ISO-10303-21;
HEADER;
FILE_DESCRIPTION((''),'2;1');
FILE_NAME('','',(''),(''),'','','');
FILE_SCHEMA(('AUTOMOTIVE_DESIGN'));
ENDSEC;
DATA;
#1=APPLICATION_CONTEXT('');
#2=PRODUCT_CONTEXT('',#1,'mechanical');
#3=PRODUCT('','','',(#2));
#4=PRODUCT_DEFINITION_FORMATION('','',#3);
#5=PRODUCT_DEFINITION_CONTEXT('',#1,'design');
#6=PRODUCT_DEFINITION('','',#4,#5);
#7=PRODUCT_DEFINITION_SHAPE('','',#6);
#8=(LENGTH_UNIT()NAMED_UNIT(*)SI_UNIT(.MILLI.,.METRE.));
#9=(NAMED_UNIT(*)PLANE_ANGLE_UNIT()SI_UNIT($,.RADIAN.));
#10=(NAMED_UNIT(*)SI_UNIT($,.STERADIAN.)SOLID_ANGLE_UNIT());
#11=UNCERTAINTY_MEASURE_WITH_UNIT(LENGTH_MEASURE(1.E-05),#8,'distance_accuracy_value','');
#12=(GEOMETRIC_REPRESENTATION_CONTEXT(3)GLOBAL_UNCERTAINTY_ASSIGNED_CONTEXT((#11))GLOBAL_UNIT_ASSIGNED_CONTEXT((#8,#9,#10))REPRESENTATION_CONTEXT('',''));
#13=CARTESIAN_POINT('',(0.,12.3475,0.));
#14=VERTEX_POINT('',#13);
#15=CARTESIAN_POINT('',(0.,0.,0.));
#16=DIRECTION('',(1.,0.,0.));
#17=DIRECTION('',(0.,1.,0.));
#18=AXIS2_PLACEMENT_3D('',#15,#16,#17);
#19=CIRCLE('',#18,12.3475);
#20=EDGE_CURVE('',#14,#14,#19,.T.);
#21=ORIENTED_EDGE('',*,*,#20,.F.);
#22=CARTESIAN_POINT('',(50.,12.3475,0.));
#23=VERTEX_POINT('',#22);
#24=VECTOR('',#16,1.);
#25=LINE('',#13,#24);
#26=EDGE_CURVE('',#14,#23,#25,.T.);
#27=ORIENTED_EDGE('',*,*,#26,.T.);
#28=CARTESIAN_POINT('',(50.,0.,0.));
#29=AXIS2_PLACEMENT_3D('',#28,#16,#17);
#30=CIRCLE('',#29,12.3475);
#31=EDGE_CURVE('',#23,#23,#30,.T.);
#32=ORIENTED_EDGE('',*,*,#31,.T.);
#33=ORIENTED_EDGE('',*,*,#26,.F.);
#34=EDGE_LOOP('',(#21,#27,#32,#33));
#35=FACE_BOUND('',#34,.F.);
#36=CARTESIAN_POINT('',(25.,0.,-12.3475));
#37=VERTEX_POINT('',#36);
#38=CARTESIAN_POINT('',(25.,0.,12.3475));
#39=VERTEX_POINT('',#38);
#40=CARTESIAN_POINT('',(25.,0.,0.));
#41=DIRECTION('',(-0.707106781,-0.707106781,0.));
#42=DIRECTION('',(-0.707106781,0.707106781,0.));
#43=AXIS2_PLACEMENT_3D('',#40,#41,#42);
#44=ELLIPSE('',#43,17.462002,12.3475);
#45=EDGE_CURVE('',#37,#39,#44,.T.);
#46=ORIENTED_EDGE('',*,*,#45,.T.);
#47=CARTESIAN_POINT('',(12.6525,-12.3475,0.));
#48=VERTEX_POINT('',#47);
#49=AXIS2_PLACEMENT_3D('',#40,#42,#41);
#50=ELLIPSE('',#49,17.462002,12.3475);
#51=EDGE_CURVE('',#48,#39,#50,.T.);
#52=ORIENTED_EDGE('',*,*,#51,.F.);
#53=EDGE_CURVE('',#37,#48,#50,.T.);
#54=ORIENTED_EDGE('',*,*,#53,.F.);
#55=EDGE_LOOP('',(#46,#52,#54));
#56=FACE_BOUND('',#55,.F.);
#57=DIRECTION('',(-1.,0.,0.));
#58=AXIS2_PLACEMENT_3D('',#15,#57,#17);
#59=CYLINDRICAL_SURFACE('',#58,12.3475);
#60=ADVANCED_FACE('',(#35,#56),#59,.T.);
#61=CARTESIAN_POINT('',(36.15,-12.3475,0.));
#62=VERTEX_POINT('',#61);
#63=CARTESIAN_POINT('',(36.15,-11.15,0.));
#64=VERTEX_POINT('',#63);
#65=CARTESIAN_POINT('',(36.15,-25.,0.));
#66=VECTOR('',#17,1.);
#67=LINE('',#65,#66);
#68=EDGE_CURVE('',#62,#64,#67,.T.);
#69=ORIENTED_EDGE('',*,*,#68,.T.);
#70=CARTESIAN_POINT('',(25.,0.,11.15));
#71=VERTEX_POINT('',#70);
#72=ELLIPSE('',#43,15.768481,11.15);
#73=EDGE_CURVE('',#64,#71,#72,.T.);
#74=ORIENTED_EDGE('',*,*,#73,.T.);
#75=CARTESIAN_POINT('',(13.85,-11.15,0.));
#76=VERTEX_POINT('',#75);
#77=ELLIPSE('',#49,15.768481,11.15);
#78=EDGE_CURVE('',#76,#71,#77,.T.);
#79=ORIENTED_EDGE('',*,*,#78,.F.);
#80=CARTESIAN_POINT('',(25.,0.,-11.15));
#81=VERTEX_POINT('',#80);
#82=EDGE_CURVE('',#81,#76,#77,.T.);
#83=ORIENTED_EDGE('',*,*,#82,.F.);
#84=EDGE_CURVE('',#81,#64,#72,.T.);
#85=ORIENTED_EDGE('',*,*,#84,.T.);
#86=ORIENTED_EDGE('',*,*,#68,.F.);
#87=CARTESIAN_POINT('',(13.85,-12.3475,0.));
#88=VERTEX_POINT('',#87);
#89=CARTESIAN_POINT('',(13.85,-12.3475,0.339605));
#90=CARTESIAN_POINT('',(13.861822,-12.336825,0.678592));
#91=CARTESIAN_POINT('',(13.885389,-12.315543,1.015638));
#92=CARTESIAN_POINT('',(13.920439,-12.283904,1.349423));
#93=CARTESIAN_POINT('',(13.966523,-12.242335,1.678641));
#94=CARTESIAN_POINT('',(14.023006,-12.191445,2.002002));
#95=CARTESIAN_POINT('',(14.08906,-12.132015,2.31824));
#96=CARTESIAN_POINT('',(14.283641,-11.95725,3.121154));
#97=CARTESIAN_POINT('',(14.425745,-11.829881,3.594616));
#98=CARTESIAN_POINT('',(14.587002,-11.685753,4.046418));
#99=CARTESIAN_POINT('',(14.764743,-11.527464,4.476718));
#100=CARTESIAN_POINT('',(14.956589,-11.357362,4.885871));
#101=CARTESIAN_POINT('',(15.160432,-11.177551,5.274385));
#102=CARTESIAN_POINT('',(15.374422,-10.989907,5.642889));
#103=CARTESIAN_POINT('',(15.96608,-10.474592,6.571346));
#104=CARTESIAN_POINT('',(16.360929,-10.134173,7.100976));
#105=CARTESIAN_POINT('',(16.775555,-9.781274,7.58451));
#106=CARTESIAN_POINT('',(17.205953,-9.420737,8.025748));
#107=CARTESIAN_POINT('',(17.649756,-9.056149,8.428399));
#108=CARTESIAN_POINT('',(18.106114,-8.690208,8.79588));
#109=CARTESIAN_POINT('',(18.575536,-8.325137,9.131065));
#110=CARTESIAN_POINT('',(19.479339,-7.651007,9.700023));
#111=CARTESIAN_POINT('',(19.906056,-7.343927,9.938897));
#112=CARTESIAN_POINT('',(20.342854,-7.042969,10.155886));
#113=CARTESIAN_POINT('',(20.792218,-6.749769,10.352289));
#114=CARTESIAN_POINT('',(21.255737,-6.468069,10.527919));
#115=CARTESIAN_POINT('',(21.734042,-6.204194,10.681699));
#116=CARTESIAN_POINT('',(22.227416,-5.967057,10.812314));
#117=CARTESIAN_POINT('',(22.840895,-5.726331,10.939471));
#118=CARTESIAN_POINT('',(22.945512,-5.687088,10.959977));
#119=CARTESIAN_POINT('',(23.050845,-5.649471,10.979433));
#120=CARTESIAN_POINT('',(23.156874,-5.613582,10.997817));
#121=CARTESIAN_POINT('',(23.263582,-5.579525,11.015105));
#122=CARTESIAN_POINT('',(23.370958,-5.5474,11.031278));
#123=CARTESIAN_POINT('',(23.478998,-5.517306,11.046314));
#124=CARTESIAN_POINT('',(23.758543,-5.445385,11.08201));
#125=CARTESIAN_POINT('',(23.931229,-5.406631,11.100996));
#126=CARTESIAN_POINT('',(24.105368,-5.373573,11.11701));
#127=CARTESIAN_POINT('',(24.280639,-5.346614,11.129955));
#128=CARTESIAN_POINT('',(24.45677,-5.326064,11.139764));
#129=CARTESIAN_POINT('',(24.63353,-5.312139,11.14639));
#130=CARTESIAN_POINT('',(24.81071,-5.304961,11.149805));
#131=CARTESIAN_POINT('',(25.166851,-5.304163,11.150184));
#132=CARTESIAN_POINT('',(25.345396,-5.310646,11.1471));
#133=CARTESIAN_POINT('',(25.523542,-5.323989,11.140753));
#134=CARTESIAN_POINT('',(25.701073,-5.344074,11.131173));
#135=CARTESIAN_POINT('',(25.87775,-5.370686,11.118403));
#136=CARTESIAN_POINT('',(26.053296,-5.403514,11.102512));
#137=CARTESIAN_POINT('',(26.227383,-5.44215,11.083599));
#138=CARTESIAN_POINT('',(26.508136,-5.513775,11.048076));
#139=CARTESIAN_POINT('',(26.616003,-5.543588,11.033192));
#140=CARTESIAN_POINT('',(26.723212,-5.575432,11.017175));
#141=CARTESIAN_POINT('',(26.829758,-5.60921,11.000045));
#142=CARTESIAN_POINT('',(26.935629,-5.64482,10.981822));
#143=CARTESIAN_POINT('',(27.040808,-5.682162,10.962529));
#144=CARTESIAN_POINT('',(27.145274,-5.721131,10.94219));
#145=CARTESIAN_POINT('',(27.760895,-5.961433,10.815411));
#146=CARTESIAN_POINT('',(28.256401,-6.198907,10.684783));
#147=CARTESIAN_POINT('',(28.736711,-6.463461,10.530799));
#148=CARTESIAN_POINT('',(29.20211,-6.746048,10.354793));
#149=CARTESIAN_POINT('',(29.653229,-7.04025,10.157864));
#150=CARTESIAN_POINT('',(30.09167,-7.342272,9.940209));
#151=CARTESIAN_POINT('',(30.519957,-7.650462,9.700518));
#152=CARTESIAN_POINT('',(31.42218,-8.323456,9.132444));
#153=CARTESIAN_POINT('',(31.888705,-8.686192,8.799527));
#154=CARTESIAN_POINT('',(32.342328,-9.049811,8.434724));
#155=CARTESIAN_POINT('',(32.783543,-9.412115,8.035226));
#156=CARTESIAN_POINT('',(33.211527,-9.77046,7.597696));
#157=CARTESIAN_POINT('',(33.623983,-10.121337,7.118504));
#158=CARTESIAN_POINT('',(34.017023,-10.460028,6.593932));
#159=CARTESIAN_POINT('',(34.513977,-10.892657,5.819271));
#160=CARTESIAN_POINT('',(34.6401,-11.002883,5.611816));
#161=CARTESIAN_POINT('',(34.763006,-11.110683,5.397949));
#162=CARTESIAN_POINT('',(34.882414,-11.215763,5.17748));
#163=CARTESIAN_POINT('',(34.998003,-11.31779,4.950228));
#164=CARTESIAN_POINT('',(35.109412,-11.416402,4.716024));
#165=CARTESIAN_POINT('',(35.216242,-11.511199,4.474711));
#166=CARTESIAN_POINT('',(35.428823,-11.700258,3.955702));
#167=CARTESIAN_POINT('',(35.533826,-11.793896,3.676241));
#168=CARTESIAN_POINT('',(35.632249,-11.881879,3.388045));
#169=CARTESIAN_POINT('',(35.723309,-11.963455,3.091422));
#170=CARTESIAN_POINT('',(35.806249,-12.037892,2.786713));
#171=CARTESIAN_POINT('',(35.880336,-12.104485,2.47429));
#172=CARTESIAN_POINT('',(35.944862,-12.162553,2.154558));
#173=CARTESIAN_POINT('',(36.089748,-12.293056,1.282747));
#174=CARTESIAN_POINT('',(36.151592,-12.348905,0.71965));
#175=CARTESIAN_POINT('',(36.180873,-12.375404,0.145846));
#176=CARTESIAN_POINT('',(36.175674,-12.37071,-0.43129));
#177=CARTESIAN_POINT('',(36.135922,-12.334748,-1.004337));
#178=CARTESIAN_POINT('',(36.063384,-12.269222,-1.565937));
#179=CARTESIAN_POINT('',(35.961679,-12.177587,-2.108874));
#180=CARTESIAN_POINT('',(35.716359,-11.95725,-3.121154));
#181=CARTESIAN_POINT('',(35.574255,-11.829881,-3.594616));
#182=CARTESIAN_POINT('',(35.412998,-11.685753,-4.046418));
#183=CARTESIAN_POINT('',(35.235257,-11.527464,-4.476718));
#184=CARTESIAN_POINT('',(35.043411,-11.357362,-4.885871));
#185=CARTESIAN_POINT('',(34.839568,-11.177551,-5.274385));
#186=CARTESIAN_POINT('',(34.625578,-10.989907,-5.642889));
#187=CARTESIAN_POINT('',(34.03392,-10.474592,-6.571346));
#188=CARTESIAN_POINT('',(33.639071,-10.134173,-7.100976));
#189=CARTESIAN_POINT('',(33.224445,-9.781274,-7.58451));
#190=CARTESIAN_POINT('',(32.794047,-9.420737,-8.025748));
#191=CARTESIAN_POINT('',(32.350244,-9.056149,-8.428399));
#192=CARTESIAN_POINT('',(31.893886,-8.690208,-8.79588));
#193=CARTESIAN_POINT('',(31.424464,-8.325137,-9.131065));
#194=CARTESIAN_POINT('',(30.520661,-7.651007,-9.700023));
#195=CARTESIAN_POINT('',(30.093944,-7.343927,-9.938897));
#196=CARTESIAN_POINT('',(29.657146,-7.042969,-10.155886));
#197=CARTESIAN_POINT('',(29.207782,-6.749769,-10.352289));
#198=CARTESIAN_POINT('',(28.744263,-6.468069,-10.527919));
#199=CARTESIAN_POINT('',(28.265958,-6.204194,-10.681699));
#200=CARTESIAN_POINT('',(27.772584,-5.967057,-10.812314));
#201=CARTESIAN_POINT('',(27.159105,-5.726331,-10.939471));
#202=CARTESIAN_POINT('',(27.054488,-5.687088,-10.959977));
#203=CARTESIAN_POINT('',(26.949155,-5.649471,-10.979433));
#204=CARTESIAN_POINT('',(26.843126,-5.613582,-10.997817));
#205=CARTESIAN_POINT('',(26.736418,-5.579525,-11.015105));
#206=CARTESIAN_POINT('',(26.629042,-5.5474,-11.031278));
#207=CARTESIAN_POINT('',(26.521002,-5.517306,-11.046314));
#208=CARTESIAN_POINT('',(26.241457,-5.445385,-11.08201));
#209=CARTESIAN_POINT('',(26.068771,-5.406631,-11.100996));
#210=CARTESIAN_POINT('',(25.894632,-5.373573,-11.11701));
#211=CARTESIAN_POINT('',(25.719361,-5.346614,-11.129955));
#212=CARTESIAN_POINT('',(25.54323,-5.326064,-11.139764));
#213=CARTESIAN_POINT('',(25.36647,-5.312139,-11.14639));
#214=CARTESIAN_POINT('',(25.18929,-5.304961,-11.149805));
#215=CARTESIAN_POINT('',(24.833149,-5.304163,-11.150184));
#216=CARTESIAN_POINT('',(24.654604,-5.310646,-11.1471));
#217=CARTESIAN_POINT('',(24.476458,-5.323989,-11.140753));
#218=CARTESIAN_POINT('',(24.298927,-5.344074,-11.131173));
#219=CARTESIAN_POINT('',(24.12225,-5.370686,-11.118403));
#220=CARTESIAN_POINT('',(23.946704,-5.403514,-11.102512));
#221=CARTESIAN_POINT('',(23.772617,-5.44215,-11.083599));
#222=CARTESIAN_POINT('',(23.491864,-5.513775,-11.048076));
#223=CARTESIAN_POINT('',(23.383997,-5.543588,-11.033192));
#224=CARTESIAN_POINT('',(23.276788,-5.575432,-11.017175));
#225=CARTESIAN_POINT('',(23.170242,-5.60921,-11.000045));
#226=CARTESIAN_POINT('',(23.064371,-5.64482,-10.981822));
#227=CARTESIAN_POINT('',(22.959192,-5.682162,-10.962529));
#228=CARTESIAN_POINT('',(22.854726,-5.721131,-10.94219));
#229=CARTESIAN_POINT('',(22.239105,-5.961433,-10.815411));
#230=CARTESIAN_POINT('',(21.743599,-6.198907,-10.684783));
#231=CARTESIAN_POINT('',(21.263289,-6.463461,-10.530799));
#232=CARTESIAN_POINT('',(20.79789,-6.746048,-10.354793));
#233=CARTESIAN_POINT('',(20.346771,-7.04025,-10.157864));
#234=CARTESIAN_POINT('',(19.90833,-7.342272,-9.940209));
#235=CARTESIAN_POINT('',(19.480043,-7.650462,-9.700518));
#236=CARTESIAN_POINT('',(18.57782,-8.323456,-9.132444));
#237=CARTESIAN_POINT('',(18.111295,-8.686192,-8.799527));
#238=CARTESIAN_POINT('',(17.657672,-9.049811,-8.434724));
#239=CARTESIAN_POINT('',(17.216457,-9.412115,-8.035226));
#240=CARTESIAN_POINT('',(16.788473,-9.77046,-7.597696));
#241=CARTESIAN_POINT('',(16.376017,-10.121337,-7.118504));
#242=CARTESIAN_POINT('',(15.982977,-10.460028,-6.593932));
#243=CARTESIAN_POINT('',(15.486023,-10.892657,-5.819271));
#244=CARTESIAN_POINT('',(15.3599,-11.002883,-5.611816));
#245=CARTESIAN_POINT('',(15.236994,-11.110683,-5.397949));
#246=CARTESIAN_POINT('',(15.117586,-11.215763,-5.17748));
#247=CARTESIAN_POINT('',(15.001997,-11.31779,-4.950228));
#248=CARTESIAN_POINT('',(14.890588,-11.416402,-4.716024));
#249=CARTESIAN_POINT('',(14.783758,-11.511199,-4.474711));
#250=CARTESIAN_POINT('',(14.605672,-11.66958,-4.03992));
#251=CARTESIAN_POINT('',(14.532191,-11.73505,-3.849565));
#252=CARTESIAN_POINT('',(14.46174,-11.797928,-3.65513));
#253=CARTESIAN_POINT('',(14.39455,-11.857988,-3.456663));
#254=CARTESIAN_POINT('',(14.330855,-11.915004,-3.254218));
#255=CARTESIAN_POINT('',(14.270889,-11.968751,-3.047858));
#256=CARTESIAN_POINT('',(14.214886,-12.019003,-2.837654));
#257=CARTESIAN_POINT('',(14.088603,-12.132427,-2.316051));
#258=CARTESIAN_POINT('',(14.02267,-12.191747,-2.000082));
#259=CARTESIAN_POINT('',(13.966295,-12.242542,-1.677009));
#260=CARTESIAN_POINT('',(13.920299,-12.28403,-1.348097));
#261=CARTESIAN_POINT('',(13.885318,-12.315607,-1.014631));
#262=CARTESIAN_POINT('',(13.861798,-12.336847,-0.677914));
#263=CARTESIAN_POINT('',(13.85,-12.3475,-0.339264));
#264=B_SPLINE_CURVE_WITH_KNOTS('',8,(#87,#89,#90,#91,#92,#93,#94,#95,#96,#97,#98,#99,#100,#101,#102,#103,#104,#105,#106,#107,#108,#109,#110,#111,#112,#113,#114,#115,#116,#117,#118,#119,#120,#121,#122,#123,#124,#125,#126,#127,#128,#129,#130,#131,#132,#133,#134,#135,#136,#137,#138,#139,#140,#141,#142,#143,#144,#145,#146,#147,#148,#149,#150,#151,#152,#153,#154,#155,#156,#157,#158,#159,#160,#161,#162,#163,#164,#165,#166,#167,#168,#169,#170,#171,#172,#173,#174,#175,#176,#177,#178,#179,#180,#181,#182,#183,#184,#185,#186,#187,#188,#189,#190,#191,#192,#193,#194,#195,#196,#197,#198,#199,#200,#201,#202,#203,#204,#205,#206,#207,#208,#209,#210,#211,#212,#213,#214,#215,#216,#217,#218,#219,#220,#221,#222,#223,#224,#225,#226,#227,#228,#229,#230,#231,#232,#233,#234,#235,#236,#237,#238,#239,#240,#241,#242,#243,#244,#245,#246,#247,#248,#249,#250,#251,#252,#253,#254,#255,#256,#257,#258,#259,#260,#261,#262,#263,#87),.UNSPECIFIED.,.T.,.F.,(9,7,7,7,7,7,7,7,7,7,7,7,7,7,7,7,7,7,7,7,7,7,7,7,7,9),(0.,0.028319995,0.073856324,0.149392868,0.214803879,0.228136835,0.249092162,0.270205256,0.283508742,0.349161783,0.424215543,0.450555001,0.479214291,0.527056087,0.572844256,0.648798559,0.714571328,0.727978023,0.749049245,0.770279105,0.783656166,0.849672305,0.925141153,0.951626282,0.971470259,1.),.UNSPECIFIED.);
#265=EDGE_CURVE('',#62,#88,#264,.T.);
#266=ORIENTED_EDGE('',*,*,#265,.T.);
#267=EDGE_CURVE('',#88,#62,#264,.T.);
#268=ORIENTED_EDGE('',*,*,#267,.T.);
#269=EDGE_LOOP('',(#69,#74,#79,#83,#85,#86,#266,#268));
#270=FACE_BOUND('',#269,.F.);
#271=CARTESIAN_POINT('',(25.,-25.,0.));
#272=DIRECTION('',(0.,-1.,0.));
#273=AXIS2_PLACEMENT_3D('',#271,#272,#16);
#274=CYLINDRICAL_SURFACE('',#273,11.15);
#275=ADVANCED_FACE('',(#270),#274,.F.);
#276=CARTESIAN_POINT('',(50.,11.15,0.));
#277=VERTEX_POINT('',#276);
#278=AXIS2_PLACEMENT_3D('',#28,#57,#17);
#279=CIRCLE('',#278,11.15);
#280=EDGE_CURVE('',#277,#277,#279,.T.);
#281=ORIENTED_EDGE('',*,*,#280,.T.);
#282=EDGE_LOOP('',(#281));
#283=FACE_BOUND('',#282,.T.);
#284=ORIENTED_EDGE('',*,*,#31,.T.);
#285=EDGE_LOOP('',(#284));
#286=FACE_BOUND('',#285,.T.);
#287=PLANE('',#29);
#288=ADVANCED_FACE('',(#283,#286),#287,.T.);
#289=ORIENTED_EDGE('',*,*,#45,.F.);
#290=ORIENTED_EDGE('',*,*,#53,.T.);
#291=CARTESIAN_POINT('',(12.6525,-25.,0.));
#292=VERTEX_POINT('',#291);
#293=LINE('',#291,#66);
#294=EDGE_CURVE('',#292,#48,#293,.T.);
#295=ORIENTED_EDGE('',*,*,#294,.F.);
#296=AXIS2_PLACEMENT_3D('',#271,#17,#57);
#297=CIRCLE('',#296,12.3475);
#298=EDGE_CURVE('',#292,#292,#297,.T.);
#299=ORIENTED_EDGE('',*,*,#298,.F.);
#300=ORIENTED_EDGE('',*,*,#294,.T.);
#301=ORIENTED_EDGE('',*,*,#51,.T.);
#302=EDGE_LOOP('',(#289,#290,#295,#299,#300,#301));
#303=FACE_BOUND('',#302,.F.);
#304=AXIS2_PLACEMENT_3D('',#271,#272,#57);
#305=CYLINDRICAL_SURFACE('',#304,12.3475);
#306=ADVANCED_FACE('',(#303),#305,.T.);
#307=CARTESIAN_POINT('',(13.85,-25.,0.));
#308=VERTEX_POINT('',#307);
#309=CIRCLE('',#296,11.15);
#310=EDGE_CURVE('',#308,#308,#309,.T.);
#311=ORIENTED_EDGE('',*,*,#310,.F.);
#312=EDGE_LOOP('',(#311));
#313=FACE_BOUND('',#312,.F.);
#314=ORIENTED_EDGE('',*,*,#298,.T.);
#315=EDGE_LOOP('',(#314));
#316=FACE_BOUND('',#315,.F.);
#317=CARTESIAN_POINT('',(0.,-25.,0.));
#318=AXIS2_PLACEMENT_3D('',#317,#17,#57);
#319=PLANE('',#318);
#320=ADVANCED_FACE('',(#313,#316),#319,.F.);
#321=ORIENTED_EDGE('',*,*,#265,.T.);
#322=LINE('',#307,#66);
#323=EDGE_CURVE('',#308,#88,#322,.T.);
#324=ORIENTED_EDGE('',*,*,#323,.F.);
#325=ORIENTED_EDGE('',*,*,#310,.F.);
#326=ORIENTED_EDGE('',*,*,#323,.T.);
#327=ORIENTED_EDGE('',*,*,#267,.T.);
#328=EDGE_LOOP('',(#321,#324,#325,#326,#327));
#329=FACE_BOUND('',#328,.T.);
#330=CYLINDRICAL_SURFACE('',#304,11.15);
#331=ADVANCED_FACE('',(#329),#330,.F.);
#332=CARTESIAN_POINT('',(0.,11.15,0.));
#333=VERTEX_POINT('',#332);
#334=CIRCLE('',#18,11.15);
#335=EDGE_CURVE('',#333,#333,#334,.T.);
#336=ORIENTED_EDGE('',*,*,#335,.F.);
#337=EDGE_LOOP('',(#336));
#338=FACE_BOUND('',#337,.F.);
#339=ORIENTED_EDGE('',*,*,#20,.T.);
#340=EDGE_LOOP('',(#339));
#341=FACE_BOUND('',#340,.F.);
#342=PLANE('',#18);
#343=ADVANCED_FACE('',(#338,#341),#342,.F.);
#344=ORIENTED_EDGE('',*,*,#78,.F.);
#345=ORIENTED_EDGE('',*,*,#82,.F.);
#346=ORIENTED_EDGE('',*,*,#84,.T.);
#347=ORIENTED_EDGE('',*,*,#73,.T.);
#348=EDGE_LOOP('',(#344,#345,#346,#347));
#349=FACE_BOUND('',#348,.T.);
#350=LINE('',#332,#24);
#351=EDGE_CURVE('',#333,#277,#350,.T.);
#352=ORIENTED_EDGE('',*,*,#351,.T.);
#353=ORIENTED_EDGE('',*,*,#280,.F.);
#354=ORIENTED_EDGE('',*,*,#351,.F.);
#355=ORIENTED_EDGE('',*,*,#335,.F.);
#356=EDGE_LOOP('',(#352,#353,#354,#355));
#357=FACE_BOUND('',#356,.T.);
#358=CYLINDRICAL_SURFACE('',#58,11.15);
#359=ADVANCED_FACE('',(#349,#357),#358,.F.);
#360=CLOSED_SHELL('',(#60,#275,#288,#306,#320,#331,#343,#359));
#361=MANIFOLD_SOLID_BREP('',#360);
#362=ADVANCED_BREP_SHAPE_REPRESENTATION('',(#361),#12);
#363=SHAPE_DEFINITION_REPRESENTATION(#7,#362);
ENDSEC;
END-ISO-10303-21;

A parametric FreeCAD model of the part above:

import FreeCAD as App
import Part
import Sketcher

V = App.Vector

doc = App.newDocument("Part")
body = doc.addObject("PartDesign::Body", "Body")

# Sketch on YZ plane
sketch1 = body.newObject("Sketcher::SketchObject", "Sketch")
sketch1.AttachmentSupport = (doc.getObject("YZ_Plane"), [""])
sketch1.MapMode = "FlatFace"
sketch1.addGeometry([
    Part.Circle(V(0, 0, 0), V(0, 0, 1), 12),
    Part.Circle(V(0, 0, 0), V(0, 0, 1), 11),
], False)
sketch1.addConstraint([
    Sketcher.Constraint("Coincident", 0, 3, -1, 1),
    Sketcher.Constraint("Coincident", 1, 3, -1, 1),
    Sketcher.Constraint("Diameter", 1, 22.3),
    Sketcher.Constraint("Diameter", 0, 24.695),
])
pad1 = body.newObject("PartDesign::Pad", "Pad")
pad1.Profile = sketch1
pad1.Length = 50

# Sketch on XZ plane
sketch2 = body.newObject("Sketcher::SketchObject", "Sketch001")
sketch2.AttachmentSupport = (doc.getObject("XZ_Plane"), [""])
sketch2.MapMode = "FlatFace"
sketch2.AttachmentOffset = App.Placement(V(0, 0, 25), App.Rotation())
sketch2.addGeometry([
    Part.Circle(V(25, 0, 0), V(0, 0, 1), 12),
    Part.Circle(V(25, 0, 0), V(0, 0, 1), 11),
], False)
sketch2.addConstraint([
    Sketcher.Constraint("Coincident", 1, 3, 0, 3),
    Sketcher.Constraint("PointOnObject", 0, 3, -1),
    Sketcher.Constraint("Diameter", 1, 22.3),
    Sketcher.Constraint("Diameter", 0, 24.695),
    Sketcher.Constraint("DistanceX", -1, 1, 0, 3, 25.0),
])
pad2 = body.newObject("PartDesign::Pad", "Pad001")
pad2.Profile = sketch2
pad2.Length = 25
pad2.Reversed = True

# Sketch on YZ plane
sketch3 = body.newObject("Sketcher::SketchObject", "Sketch002")
sketch3.AttachmentSupport = (doc.getObject("YZ_Plane"), [""])
sketch3.MapMode = "FlatFace"
sketch3.addGeometry(Part.Circle(V(0, 0, 0), V(0, 0, 1), 11), False)
sketch3.addConstraint([
    Sketcher.Constraint("Coincident", 0, 3, -1, 1),
    Sketcher.Constraint("Diameter", 0, 22.3),
])
pocket1 = body.newObject("PartDesign::Pocket", "Pocket")
pocket1.Profile = sketch3
pocket1.Length = 78.975
pocket1.Reversed = True

# Sketch on XZ plane
sketch4 = body.newObject("Sketcher::SketchObject", "Sketch003")
sketch4.AttachmentSupport = (doc.getObject("XZ_Plane"), [""])
sketch4.MapMode = "FlatFace"
sketch4.AttachmentOffset = App.Placement(V(0, 0, 25), App.Rotation())
sketch4.addGeometry(Part.Circle(V(25, 0, 0), V(0, 0, 1), 11), False)
sketch4.addConstraint([
    Sketcher.Constraint("PointOnObject", 0, 3, -1),
    Sketcher.Constraint("Diameter", 0, 22.3),
    Sketcher.Constraint("DistanceX", -1, 1, 0, 3, 25.0),
])
pocket2 = body.newObject("PartDesign::Pocket", "Pocket001")
pocket2.Profile = sketch4
pocket2.Length = 25

doc.recompute()
